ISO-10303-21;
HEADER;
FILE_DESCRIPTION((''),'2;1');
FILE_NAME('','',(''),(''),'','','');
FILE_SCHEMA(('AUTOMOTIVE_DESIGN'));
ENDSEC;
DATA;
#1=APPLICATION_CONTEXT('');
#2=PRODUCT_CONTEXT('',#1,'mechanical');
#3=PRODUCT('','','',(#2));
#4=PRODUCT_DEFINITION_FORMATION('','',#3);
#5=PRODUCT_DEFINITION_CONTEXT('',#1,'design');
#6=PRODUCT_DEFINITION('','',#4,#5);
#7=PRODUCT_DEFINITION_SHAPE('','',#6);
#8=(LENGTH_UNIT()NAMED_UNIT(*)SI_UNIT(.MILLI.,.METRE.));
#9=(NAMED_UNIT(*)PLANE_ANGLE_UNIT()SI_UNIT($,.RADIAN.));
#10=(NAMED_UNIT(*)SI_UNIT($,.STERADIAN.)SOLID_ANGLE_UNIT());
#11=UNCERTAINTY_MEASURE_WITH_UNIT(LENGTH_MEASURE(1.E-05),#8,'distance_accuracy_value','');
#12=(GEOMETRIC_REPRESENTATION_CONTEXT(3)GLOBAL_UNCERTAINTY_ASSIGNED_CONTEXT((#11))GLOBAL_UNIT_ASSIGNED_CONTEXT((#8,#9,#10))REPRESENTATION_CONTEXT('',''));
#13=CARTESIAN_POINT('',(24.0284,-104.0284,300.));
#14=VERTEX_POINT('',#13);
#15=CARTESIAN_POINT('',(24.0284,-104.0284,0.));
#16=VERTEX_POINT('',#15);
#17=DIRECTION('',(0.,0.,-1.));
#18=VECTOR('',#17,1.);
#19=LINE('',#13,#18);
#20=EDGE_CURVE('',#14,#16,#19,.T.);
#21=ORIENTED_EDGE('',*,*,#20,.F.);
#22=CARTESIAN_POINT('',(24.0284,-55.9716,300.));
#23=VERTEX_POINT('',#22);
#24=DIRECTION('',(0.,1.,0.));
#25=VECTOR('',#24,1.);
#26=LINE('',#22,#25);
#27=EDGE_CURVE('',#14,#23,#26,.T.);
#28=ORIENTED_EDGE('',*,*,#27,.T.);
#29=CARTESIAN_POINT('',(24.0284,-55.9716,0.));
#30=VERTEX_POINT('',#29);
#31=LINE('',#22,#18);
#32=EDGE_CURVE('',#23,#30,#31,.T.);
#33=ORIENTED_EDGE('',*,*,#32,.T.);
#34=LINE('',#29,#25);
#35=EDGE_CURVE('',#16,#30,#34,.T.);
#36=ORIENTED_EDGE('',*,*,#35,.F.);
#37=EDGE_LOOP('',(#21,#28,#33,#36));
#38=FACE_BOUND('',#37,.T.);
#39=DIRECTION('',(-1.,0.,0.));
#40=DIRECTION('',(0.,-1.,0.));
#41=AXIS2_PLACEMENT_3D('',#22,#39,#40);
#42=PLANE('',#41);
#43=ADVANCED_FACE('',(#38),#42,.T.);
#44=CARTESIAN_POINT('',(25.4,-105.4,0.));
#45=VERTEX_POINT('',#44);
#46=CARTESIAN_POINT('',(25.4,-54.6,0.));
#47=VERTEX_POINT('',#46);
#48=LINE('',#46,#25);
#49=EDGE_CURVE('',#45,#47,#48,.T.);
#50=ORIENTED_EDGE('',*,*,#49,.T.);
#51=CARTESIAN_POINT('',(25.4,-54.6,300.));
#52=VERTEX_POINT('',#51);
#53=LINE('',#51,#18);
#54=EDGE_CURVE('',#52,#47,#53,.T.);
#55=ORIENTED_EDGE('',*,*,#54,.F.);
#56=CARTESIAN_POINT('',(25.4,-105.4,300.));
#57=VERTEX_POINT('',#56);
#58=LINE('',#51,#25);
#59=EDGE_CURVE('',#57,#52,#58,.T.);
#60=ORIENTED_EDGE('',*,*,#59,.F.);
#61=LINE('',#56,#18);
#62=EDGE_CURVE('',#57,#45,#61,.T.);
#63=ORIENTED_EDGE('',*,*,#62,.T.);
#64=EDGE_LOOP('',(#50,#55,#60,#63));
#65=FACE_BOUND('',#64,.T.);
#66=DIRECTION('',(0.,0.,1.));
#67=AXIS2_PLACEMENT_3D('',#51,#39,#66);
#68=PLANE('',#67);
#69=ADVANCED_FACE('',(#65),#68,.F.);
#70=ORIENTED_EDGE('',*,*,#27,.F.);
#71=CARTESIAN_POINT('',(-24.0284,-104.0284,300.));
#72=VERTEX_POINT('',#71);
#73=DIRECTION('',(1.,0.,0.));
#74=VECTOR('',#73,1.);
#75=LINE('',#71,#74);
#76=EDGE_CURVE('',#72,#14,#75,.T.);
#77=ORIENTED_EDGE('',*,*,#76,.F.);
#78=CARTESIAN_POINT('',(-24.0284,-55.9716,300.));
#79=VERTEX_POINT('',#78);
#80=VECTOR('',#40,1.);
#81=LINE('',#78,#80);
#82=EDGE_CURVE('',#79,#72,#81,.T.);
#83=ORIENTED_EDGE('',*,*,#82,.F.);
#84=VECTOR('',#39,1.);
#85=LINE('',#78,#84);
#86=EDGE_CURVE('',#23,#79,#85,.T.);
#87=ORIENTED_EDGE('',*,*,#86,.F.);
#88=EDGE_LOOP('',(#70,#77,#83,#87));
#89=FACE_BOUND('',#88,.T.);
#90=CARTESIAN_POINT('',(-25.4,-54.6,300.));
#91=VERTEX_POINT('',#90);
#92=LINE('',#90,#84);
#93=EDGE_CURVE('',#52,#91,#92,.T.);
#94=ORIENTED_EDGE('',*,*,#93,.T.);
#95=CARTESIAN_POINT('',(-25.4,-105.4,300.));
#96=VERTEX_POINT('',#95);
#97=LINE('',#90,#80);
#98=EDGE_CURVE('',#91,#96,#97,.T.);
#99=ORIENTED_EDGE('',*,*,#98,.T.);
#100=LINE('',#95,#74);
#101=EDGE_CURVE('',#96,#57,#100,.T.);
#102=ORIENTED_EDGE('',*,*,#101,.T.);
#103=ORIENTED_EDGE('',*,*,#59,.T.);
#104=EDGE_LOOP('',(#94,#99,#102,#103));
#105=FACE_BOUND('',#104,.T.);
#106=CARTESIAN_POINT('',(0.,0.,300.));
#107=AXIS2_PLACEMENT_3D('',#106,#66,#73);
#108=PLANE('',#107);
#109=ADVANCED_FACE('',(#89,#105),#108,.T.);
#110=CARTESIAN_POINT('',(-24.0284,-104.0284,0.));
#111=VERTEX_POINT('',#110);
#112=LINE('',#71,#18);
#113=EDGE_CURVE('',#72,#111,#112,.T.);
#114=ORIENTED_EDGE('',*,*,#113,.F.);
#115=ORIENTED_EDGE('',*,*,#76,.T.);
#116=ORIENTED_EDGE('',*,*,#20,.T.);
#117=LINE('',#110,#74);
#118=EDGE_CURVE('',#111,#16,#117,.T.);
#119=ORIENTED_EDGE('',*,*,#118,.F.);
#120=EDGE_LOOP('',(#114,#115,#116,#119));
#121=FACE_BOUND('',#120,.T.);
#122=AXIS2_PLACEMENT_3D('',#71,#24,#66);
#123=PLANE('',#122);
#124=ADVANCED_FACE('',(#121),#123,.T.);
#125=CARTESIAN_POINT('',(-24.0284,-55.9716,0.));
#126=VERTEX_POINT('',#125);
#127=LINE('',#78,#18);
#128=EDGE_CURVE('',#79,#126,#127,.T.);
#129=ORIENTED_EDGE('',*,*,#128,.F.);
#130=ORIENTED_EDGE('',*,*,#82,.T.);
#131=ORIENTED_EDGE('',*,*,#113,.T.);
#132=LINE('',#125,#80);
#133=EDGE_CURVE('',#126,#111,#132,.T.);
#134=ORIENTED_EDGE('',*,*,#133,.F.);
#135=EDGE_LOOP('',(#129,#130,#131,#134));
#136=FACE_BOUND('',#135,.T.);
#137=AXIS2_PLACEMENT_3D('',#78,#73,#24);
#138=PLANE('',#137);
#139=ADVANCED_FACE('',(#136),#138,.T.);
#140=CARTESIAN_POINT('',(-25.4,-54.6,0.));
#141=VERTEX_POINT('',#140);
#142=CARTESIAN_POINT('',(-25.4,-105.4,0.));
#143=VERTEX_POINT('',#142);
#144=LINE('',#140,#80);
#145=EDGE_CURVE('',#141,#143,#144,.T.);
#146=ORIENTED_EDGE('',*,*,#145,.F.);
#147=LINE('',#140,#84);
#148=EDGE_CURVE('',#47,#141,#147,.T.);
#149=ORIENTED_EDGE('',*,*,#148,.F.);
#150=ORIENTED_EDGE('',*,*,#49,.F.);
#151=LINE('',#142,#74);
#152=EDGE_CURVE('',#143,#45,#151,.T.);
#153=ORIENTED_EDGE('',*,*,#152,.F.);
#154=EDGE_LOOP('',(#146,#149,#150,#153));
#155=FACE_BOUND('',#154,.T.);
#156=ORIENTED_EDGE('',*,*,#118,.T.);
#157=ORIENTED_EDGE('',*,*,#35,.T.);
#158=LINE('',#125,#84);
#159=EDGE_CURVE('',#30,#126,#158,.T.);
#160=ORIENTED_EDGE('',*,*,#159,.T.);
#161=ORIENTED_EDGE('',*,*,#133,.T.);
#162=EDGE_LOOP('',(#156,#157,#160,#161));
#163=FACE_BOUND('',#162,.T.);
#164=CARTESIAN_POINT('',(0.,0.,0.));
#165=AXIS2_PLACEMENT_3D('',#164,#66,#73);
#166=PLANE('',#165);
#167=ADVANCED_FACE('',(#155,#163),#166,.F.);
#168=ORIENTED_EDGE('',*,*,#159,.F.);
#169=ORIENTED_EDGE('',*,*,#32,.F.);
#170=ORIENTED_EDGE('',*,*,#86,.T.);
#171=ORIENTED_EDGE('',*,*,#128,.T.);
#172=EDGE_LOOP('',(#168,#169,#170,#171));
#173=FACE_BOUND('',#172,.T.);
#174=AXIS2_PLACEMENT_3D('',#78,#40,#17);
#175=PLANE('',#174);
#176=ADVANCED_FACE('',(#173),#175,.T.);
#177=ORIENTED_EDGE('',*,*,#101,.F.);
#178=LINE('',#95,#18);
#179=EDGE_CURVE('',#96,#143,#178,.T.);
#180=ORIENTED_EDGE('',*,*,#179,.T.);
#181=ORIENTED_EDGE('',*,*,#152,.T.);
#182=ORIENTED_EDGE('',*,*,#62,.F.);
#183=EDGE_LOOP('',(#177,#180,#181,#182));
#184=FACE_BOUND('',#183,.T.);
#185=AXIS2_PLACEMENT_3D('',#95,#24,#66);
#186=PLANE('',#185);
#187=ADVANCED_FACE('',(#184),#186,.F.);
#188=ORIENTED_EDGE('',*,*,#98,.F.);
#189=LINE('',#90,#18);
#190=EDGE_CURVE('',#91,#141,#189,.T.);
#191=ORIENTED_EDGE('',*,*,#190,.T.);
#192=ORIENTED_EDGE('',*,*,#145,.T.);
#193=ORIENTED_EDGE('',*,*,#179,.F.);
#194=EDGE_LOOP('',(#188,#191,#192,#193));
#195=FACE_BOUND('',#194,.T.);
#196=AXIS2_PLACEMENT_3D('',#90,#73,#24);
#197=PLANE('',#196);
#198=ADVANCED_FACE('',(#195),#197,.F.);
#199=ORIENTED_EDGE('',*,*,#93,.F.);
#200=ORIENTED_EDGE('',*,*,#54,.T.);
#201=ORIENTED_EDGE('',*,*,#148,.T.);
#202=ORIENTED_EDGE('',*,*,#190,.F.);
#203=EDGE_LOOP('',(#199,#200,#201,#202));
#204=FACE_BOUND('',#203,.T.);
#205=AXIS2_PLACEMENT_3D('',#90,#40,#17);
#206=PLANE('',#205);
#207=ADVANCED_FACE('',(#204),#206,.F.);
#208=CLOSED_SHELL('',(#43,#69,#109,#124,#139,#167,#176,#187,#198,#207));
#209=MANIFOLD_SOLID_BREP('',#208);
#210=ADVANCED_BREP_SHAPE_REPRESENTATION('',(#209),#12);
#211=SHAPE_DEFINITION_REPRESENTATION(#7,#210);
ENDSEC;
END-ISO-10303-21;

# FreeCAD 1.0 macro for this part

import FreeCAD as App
import Part
import Sketcher
from FreeCAD import Vector
Q = App.Units.Quantity

doc = App.newDocument("Part")
params = doc.addObject("Spreadsheet::Sheet", "Params")
for row, (alias, value) in enumerate([
    ("sketch1_width", "2 in"),
    ("sketch1_width2", "1.892 in"),
    ("pad1_length", "300 mm"),
], start=1):
    params.set(f"A{row}", alias)
    params.set(f"B{row}", "=" + value)
    params.setAlias(f"B{row}", alias)

body = doc.addObject("PartDesign::Body", "Body")

sketch1 = body.newObject("Sketcher::SketchObject", "Sketch")
sketch1.AttachmentSupport = (doc.getObject("XY_Plane"), [""])
sketch1.MapMode = "FlatFace"
sketch1.addGeometry(Part.LineSegment(Vector(-25, -55, 0), Vector(-25, -105, 0)), False)
sketch1.addGeometry(Part.LineSegment(Vector(-25, -105, 0), Vector(25, -105, 0)), False)
sketch1.addGeometry(Part.LineSegment(Vector(25, -105, 0), Vector(25, -55, 0)), False)
sketch1.addGeometry(Part.LineSegment(Vector(25, -55, 0), Vector(-25, -55, 0)), False)
sketch1.addGeometry(Part.LineSegment(Vector(24, -104, 0), Vector(-24, -104, 0)), False)
sketch1.addGeometry(Part.LineSegment(Vector(-24, -104, 0), Vector(-24, -56, 0)), False)
sketch1.addGeometry(Part.LineSegment(Vector(-24, -56, 0), Vector(24, -56, 0)), False)
sketch1.addGeometry(Part.LineSegment(Vector(24, -56, 0), Vector(24, -104, 0)), False)
sketch1.addConstraint(Sketcher.Constraint("Coincident", 0, 2, 1, 1))
sketch1.addConstraint(Sketcher.Constraint("Coincident", 1, 2, 2, 1))
sketch1.addConstraint(Sketcher.Constraint("Coincident", 2, 2, 3, 1))
sketch1.addConstraint(Sketcher.Constraint("Coincident", 3, 2, 0, 1))
sketch1.addConstraint(Sketcher.Constraint("Coincident", 4, 2, 5, 1))
sketch1.addConstraint(Sketcher.Constraint("Coincident", 5, 2, 6, 1))
sketch1.addConstraint(Sketcher.Constraint("Coincident", 6, 2, 7, 1))
sketch1.addConstraint(Sketcher.Constraint("Coincident", 7, 2, 4, 1))
sketch1.addConstraint(Sketcher.Constraint("Vertical", 0))
sketch1.addConstraint(Sketcher.Constraint("Horizontal", 1))
sketch1.addConstraint(Sketcher.Constraint("Vertical", 2))
sketch1.addConstraint(Sketcher.Constraint("Horizontal", 3))
sketch1.addConstraint(Sketcher.Constraint("Horizontal", 4))
sketch1.addConstraint(Sketcher.Constraint("Vertical", 5))
sketch1.addConstraint(Sketcher.Constraint("Horizontal", 6))
sketch1.addConstraint(Sketcher.Constraint("Vertical", 7))
sketch1.addConstraint(Sketcher.Constraint("Equal", 3, 0))
sketch1.addConstraint(Sketcher.Constraint("Equal", 6, 5))
sketch1.addConstraint(Sketcher.Constraint("DistanceX", 1, 1, 1, 2, Q("2 in")))
sketch1.addConstraint(Sketcher.Constraint("DistanceX", 0, 2, -1, 1, Q("1 in")))
sketch1.addConstraint(Sketcher.Constraint("DistanceX", 4, 2, 4, 1, Q("1.892 in")))
sketch1.addConstraint(Sketcher.Constraint("DistanceX", 4, 2, -1, 1, Q("0.946 in")))
sketch1.addConstraint(Sketcher.Constraint("DistanceY", 0, 2, 4, 2, Q("0.054 in")))
sketch1.addConstraint(Sketcher.Constraint("DistanceY", 0, 2, -1, 1, 105.4))
sketch1.setExpression("Constraints[18]", "Params.sketch1_width")
sketch1.setExpression("Constraints[20]", "Params.sketch1_width2")
pad1 = body.newObject("PartDesign::Pad", "Pad")
pad1.Profile = sketch1
pad1.setExpression("Length", "Params.pad1_length")

doc.recompute()
